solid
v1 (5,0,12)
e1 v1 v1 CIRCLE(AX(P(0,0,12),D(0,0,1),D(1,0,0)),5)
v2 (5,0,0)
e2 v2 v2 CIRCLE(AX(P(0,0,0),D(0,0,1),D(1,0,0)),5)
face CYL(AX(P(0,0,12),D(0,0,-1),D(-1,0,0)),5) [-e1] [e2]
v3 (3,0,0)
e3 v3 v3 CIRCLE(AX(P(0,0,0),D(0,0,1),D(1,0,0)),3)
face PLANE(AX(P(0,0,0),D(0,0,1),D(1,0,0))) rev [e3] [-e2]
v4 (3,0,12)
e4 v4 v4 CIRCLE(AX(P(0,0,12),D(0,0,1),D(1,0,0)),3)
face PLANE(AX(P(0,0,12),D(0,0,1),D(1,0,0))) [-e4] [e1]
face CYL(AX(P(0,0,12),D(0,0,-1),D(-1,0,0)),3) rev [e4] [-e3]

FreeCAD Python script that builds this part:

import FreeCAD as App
import Part
import Sketcher
from FreeCAD import Vector

doc = App.newDocument("Part")
body = doc.addObject("PartDesign::Body", "Body")

sketch1 = body.newObject("Sketcher::SketchObject", "Sketch")
sketch1.AttachmentSupport = (doc.getObject("XY_Plane"), [""])
sketch1.MapMode = "FlatFace"
sketch1.addGeometry([
    Part.Circle(Vector(0, 0, 0), Vector(0, 0, 1), 5),
    Part.Circle(Vector(0, 0, 0), Vector(0, 0, 1), 3),
], False)
sketch1.addConstraint([
    Sketcher.Constraint("Coincident", 0, 3, -1, 1),
    Sketcher.Constraint("Coincident", 1, 3, -1, 1),
    Sketcher.Constraint("Diameter", 0, 10.0),
    Sketcher.Constraint("Diameter", 1, 6.0),
])
pad1 = body.newObject("PartDesign::Pad", "Pad")
pad1.Profile = sketch1
pad1.Length = 12

doc.recompute()
